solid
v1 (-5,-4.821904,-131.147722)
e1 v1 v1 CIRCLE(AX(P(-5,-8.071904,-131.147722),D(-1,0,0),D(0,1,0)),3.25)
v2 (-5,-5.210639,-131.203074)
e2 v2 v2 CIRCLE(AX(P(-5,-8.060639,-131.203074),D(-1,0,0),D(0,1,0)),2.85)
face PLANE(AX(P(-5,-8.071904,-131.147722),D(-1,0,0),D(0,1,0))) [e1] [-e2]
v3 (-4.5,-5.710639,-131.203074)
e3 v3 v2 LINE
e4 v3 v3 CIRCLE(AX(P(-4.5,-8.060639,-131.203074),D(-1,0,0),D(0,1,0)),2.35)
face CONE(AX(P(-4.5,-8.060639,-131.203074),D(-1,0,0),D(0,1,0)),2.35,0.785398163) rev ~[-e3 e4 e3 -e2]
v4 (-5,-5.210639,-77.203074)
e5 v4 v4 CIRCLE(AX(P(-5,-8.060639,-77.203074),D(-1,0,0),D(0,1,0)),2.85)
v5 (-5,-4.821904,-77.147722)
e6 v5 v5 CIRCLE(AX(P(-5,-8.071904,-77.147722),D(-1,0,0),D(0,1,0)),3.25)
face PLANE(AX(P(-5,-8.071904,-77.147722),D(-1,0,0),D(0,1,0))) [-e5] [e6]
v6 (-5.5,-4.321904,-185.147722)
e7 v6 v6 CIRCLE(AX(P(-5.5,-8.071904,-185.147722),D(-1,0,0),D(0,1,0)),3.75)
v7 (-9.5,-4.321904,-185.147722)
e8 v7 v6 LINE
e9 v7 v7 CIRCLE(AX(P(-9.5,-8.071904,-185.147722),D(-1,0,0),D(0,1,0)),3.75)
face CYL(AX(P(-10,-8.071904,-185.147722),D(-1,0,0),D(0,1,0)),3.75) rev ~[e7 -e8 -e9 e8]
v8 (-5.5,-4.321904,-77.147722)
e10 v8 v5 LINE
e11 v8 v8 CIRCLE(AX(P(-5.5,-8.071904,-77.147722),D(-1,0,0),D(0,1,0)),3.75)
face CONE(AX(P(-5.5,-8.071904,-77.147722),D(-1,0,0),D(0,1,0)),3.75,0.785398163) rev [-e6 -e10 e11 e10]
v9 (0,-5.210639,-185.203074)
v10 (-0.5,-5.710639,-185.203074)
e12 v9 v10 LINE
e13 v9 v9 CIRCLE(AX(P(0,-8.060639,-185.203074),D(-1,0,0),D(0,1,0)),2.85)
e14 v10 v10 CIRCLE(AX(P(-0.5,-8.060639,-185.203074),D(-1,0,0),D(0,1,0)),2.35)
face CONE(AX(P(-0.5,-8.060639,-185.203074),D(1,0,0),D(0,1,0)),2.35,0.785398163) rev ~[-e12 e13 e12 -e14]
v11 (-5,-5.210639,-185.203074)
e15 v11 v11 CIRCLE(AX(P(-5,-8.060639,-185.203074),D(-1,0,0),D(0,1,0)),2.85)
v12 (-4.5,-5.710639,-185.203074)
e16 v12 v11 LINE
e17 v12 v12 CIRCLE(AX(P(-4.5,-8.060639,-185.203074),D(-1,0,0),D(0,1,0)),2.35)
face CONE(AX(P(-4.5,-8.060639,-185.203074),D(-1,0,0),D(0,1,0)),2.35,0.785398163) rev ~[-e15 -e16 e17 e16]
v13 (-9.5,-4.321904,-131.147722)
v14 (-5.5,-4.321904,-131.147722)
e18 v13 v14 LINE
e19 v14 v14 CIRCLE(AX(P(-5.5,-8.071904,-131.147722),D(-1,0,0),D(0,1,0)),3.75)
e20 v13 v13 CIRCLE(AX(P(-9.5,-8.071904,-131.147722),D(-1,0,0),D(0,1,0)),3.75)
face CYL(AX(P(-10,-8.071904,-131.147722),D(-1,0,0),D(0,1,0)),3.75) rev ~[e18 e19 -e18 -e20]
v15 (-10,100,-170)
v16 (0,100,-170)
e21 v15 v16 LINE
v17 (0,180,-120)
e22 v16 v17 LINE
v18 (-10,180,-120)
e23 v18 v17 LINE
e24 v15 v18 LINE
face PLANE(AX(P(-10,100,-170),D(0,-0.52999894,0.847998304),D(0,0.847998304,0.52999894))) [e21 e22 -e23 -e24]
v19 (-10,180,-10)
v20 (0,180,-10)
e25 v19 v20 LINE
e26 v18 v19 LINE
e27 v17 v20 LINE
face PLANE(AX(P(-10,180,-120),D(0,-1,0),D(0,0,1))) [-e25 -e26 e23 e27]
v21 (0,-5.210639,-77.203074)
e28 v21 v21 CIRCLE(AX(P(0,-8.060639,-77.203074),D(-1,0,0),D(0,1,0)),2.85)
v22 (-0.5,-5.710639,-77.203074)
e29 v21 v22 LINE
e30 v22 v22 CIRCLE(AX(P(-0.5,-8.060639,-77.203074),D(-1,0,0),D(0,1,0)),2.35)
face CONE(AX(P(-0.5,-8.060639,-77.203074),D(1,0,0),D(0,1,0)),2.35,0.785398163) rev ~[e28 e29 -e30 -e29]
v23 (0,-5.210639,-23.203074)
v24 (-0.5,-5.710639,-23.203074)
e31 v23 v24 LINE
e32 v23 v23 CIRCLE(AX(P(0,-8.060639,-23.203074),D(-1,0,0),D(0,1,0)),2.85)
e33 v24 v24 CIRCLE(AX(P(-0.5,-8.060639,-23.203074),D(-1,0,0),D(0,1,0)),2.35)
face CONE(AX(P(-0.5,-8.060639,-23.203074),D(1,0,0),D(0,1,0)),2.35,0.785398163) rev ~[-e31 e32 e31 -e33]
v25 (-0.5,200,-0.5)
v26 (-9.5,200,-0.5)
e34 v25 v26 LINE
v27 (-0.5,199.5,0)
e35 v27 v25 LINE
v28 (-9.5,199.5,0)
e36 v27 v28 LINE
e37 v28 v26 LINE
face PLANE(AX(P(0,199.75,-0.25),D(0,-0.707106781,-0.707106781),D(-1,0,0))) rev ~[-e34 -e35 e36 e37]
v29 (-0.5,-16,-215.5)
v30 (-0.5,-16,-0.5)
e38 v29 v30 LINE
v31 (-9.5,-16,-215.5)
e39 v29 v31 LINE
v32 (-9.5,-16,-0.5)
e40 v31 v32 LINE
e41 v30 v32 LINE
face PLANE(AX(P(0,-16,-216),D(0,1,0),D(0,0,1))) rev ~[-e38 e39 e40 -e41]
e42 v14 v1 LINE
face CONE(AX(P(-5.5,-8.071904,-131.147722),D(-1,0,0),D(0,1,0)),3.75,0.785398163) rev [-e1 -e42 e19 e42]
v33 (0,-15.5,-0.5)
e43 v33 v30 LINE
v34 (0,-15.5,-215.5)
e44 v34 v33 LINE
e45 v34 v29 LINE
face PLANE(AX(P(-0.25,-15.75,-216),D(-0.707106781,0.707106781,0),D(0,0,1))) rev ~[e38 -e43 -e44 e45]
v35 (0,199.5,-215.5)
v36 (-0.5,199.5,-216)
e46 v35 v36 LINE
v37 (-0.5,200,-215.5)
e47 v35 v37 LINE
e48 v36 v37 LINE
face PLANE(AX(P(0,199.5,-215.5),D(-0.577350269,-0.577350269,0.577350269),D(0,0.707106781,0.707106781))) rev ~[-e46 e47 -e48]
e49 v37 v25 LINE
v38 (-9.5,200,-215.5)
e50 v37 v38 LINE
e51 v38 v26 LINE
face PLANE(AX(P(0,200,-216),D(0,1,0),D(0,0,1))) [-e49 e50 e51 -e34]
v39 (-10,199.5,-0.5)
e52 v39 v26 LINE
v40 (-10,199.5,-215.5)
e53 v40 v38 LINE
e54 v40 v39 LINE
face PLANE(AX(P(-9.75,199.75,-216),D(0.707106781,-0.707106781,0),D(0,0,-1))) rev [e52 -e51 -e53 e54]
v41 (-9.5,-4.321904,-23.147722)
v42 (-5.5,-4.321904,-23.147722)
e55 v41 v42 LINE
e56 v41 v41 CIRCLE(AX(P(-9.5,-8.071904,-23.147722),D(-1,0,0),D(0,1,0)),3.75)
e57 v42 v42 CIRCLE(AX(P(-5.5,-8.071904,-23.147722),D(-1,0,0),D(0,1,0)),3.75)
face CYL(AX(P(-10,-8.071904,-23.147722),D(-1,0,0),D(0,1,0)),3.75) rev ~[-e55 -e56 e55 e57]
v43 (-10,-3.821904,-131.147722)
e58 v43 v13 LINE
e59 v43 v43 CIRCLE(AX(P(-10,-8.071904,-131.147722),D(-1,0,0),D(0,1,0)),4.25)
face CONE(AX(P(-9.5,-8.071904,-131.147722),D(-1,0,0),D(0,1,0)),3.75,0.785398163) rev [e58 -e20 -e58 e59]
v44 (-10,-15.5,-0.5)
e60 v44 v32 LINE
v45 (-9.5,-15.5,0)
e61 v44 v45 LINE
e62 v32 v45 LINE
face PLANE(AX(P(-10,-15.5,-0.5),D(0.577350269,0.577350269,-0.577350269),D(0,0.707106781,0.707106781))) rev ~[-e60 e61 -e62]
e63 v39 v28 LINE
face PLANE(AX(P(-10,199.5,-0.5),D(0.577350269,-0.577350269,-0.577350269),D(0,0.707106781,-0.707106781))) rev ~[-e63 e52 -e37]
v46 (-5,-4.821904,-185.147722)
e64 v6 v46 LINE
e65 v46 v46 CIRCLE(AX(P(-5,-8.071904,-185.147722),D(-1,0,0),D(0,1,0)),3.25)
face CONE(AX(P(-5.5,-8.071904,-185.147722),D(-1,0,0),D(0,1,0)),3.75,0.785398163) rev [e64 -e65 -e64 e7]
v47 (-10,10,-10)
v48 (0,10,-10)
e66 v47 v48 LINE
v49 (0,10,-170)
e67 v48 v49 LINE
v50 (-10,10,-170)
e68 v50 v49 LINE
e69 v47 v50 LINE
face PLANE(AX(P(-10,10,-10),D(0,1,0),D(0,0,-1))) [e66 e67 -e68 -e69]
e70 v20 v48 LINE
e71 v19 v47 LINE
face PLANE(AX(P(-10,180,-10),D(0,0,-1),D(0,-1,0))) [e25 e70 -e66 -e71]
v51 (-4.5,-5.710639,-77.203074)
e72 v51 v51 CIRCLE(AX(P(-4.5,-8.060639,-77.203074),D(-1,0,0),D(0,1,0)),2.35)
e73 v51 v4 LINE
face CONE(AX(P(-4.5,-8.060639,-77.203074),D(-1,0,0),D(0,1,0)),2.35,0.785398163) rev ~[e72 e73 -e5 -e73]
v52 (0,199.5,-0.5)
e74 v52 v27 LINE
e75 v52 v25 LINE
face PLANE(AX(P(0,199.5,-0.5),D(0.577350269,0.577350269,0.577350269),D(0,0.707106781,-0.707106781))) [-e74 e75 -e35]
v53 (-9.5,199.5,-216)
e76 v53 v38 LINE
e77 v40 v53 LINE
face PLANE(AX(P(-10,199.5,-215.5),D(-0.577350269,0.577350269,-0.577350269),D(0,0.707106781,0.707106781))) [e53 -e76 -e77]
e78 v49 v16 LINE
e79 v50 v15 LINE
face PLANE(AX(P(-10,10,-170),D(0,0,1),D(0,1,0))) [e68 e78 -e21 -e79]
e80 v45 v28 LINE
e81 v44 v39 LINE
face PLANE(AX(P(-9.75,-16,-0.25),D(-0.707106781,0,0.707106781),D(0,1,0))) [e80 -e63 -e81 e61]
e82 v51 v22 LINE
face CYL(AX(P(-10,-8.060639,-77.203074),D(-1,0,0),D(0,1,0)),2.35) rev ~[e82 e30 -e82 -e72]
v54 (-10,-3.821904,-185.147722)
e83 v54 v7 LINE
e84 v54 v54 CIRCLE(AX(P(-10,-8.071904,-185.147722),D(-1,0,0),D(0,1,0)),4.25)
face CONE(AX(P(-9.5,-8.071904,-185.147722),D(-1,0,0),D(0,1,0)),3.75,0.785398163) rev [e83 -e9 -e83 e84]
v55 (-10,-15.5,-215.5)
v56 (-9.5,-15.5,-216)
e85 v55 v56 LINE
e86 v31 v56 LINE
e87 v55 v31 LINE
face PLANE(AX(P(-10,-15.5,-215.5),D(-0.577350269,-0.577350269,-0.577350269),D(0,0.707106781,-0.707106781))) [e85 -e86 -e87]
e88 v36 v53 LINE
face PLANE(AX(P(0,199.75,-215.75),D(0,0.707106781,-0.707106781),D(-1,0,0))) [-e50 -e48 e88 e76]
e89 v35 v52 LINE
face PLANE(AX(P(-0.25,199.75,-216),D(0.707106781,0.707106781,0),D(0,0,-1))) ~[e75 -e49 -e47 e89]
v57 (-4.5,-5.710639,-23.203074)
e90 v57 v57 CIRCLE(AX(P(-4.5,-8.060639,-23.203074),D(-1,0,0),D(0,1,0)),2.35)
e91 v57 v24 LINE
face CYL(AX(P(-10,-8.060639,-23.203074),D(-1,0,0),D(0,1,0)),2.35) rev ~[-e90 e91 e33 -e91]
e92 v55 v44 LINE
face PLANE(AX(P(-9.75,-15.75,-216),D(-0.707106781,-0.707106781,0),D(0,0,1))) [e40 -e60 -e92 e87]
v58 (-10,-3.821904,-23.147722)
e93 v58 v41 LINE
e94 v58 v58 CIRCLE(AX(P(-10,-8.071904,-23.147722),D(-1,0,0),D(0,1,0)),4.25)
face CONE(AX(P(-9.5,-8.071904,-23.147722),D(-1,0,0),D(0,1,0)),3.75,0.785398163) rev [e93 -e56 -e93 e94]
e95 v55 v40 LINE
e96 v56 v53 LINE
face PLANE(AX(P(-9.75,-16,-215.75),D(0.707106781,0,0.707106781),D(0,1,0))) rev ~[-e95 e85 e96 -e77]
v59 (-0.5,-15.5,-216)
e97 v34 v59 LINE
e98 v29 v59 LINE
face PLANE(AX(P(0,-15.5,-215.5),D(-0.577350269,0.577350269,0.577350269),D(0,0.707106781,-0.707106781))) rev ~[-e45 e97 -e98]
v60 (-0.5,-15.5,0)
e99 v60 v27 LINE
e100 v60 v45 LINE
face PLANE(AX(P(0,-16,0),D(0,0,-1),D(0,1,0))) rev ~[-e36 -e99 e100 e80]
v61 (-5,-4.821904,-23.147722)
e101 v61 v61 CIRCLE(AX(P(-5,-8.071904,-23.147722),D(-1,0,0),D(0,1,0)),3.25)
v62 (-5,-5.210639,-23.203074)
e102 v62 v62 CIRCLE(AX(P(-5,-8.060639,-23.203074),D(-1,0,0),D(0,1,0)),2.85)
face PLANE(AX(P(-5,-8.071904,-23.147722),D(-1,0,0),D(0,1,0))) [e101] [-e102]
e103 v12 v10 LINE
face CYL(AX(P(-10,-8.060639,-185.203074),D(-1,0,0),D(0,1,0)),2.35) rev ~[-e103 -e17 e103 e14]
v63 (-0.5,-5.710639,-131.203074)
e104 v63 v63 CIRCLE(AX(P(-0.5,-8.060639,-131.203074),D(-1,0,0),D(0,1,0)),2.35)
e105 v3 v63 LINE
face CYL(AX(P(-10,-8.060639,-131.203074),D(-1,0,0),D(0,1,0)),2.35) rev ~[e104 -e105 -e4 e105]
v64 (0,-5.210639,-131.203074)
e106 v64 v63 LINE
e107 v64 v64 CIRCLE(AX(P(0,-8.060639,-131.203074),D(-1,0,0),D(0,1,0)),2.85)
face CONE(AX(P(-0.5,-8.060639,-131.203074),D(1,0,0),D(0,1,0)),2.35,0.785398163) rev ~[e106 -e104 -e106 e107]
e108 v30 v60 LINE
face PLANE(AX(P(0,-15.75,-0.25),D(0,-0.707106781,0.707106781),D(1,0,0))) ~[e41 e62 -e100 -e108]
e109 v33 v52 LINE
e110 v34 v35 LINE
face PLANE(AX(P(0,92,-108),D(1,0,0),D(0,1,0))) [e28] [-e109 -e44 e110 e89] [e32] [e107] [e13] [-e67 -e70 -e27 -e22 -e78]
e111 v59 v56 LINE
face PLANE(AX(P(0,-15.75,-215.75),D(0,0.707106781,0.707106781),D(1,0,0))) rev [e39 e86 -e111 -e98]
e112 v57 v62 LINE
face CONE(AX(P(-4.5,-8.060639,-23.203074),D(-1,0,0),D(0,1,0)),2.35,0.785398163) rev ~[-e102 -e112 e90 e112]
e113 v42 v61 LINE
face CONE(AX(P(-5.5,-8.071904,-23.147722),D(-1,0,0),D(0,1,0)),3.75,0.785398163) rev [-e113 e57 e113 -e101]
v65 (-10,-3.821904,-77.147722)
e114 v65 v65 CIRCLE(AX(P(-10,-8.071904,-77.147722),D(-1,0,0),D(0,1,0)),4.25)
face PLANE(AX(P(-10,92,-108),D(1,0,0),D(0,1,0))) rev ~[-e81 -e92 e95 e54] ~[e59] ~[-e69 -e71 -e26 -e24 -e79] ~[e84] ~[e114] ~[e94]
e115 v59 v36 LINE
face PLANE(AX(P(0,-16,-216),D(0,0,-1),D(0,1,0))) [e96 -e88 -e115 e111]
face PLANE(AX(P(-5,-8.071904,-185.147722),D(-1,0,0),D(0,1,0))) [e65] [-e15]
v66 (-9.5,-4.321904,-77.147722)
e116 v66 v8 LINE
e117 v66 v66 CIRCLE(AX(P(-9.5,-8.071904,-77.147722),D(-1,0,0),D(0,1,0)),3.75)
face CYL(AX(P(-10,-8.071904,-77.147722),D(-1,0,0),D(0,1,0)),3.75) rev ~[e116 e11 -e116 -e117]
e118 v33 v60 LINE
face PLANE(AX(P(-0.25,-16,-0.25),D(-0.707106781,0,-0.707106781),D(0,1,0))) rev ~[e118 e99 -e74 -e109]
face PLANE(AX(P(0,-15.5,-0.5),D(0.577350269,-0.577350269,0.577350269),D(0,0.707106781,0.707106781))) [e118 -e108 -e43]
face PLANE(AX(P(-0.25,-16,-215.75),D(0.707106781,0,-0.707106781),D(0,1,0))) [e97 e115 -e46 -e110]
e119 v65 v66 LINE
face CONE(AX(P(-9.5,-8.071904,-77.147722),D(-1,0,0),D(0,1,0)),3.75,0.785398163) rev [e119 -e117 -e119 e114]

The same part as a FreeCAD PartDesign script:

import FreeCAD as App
import Part
import Sketcher
from FreeCAD import Vector


def add_polygon(sketch, points):
    """Adds a closed chain of lines whose ends are joined by coincident constraints."""
    first, n = sketch.GeometryCount, len(points)
    for a, b in zip(points, points[1:] + points[:1]):
        sketch.addGeometry(Part.LineSegment(App.Vector(*a, 0), App.Vector(*b, 0)), False)
    for i in range(n):
        sketch.addConstraint(Sketcher.Constraint("Coincident", first + i, 2, first + (i + 1) % n, 1))

doc = App.newDocument("Part")
body = doc.addObject("PartDesign::Body", "Body")

# Sketch on YZ plane
sketch1 = body.newObject("Sketcher::SketchObject", "Sketch")
sketch1.AttachmentSupport = (doc.getObject("YZ_Plane"), [""])
sketch1.MapMode = "FlatFace"
add_polygon(sketch1, [(-16, 0), (-16, -216), (200, -216), (200, 0)])  # lines 0-3
sketch1.addConstraint([
    Sketcher.Constraint("Vertical", 0),
    Sketcher.Constraint("Horizontal", 1),
    Sketcher.Constraint("Vertical", 2),
    Sketcher.Constraint("Horizontal", 3),
    Sketcher.Constraint("PointOnObject", 2, 2, -1),
    Sketcher.Constraint("Equal", 3, 0),
    Sketcher.Constraint("DistanceX", 1, 1, 1, 2, 216.0),
    Sketcher.Constraint("DistanceX", 0, 2, -1, 1, 16.0),
])
pad1 = body.newObject("PartDesign::Pad", "Pad")
pad1.Profile = sketch1
pad1.Length = 10
pad1.Reversed = True

# Sketch on YZ plane
sketch2 = body.newObject("Sketcher::SketchObject", "Sketch001")
sketch2.AttachmentSupport = (doc.getObject("YZ_Plane"), [""])
sketch2.MapMode = "FlatFace"
sketch2.AttachmentOffset = App.Placement(Vector(0, 0, -10), App.Rotation())
sketch2.addGeometry([
    Part.Circle(Vector(-8.1, -185.2, 0), Vector(0, 0, 1), 2.4),
    Part.Circle(Vector(-8.1, -131.2, 0), Vector(0, 0, 1), 2.4),
    Part.Circle(Vector(-8.1, -77.2, 0), Vector(0, 0, 1), 2.4),
    Part.Circle(Vector(-8.1, -23.2, 0), Vector(0, 0, 1), 2.4),
], False)
sketch2.addConstraint([
    Sketcher.Constraint("Equal", 0, 1),
    Sketcher.Constraint("Equal", 1, 2),
    Sketcher.Constraint("Equal", 2, 3),
    Sketcher.Constraint("Vertical", 0, 3, 1, 3),
    Sketcher.Constraint("Vertical", 1, 3, 2, 3),
    Sketcher.Constraint("Vertical", 2, 3, 3, 3),
    Sketcher.Constraint("Diameter", 0, 4.7),
    Sketcher.Constraint("DistanceY", 0, 3, 1, 3, 54.0),
    Sketcher.Constraint("DistanceY", 1, 3, 2, 3, 54.0),
    Sketcher.Constraint("DistanceY", 2, 3, 3, 3, 54.0),
    Sketcher.Constraint("DistanceX", 0, 3, -1, 1, 8.060639),
    Sketcher.Constraint("DistanceY", 0, 3, -1, 1, 185.203074),
])
pocket1 = body.newObject("PartDesign::Pocket", "Pocket")
pocket1.Profile = sketch2
pocket1.Length = 11
pocket1.Reversed = True

# Sketch on YZ plane
sketch3 = body.newObject("Sketcher::SketchObject", "Sketch002")
sketch3.AttachmentSupport = (doc.getObject("YZ_Plane"), [""])
sketch3.MapMode = "FlatFace"
sketch3.AttachmentOffset = App.Placement(Vector(0, 0, -10), App.Rotation())
sketch3.addGeometry([
    Part.Circle(Vector(-8.1, -23.1, 0), Vector(0, 0, 1), 3.8),
    Part.Circle(Vector(-8.1, -77.1, 0), Vector(0, 0, 1), 3.8),
    Part.Circle(Vector(-8.1, -131.1, 0), Vector(0, 0, 1), 3.8),
    Part.Circle(Vector(-8.1, -185.1, 0), Vector(0, 0, 1), 3.8),
], False)
sketch3.addConstraint([
    Sketcher.Constraint("Equal", 0, 1),
    Sketcher.Constraint("Equal", 1, 2),
    Sketcher.Constraint("Equal", 2, 3),
    Sketcher.Constraint("Vertical", 0, 3, 1, 3),
    Sketcher.Constraint("Vertical", 1, 3, 2, 3),
    Sketcher.Constraint("Vertical", 2, 3, 3, 3),
    Sketcher.Constraint("Diameter", 0, 7.5),
    Sketcher.Constraint("DistanceY", 1, 3, 0, 3, 54.0),
    Sketcher.Constraint("DistanceY", 2, 3, 1, 3, 54.0),
    Sketcher.Constraint("DistanceY", 3, 3, 2, 3, 54.0),
    Sketcher.Constraint("DistanceY", 1, 3, -1, 1, 77.147722),
    Sketcher.Constraint("DistanceX", 0, 3, -1, 1, 8.071904),
])
pocket2 = body.newObject("PartDesign::Pocket", "Pocket001")
pocket2.Profile = sketch3
pocket2.Length = 5
pocket2.Reversed = True
doc.recompute()

chamfer = body.newObject("PartDesign::Chamfer", "Chamfer")
chamfer.Base = (pocket2, ["Edge1"])
chamfer.UseAllEdges = True
chamfer.Size = 0.5

# Sketch on YZ plane
sketch4 = body.newObject("Sketcher::SketchObject", "Sketch003")
sketch4.AttachmentSupport = (doc.getObject("YZ_Plane"), [""])
sketch4.MapMode = "FlatFace"
sketch4.AttachmentOffset = App.Placement(Vector(0, 0, -10), App.Rotation())
add_polygon(sketch4, [(10, -10), (180, -10), (180, -120), (100, -170), (10, -170)])  # lines 0-4
sketch4.addConstraint([
    Sketcher.Constraint("Horizontal", 0),
    Sketcher.Constraint("Vertical", 1),
    Sketcher.Constraint("Horizontal", 3),
    Sketcher.Constraint("Vertical", 4),
    Sketcher.Constraint("DistanceX", 0, 1, 0, 2, 170.0),
    Sketcher.Constraint("DistanceX", 3, 2, 3, 1, 90.0),
    Sketcher.Constraint("DistanceY", 1, 2, 1, 1, 110.0),
    Sketcher.Constraint("DistanceY", 4, 1, 4, 2, 160.0),
    Sketcher.Constraint("DistanceX", -1, 1, 0, 2, 180.0),
    Sketcher.Constraint("DistanceY", 0, 2, -1, 1, 10.0),
])
pocket3 = body.newObject("PartDesign::Pocket", "Pocket002")
pocket3.Profile = sketch4
pocket3.Length = 10
pocket3.Reversed = True

doc.recompute()
